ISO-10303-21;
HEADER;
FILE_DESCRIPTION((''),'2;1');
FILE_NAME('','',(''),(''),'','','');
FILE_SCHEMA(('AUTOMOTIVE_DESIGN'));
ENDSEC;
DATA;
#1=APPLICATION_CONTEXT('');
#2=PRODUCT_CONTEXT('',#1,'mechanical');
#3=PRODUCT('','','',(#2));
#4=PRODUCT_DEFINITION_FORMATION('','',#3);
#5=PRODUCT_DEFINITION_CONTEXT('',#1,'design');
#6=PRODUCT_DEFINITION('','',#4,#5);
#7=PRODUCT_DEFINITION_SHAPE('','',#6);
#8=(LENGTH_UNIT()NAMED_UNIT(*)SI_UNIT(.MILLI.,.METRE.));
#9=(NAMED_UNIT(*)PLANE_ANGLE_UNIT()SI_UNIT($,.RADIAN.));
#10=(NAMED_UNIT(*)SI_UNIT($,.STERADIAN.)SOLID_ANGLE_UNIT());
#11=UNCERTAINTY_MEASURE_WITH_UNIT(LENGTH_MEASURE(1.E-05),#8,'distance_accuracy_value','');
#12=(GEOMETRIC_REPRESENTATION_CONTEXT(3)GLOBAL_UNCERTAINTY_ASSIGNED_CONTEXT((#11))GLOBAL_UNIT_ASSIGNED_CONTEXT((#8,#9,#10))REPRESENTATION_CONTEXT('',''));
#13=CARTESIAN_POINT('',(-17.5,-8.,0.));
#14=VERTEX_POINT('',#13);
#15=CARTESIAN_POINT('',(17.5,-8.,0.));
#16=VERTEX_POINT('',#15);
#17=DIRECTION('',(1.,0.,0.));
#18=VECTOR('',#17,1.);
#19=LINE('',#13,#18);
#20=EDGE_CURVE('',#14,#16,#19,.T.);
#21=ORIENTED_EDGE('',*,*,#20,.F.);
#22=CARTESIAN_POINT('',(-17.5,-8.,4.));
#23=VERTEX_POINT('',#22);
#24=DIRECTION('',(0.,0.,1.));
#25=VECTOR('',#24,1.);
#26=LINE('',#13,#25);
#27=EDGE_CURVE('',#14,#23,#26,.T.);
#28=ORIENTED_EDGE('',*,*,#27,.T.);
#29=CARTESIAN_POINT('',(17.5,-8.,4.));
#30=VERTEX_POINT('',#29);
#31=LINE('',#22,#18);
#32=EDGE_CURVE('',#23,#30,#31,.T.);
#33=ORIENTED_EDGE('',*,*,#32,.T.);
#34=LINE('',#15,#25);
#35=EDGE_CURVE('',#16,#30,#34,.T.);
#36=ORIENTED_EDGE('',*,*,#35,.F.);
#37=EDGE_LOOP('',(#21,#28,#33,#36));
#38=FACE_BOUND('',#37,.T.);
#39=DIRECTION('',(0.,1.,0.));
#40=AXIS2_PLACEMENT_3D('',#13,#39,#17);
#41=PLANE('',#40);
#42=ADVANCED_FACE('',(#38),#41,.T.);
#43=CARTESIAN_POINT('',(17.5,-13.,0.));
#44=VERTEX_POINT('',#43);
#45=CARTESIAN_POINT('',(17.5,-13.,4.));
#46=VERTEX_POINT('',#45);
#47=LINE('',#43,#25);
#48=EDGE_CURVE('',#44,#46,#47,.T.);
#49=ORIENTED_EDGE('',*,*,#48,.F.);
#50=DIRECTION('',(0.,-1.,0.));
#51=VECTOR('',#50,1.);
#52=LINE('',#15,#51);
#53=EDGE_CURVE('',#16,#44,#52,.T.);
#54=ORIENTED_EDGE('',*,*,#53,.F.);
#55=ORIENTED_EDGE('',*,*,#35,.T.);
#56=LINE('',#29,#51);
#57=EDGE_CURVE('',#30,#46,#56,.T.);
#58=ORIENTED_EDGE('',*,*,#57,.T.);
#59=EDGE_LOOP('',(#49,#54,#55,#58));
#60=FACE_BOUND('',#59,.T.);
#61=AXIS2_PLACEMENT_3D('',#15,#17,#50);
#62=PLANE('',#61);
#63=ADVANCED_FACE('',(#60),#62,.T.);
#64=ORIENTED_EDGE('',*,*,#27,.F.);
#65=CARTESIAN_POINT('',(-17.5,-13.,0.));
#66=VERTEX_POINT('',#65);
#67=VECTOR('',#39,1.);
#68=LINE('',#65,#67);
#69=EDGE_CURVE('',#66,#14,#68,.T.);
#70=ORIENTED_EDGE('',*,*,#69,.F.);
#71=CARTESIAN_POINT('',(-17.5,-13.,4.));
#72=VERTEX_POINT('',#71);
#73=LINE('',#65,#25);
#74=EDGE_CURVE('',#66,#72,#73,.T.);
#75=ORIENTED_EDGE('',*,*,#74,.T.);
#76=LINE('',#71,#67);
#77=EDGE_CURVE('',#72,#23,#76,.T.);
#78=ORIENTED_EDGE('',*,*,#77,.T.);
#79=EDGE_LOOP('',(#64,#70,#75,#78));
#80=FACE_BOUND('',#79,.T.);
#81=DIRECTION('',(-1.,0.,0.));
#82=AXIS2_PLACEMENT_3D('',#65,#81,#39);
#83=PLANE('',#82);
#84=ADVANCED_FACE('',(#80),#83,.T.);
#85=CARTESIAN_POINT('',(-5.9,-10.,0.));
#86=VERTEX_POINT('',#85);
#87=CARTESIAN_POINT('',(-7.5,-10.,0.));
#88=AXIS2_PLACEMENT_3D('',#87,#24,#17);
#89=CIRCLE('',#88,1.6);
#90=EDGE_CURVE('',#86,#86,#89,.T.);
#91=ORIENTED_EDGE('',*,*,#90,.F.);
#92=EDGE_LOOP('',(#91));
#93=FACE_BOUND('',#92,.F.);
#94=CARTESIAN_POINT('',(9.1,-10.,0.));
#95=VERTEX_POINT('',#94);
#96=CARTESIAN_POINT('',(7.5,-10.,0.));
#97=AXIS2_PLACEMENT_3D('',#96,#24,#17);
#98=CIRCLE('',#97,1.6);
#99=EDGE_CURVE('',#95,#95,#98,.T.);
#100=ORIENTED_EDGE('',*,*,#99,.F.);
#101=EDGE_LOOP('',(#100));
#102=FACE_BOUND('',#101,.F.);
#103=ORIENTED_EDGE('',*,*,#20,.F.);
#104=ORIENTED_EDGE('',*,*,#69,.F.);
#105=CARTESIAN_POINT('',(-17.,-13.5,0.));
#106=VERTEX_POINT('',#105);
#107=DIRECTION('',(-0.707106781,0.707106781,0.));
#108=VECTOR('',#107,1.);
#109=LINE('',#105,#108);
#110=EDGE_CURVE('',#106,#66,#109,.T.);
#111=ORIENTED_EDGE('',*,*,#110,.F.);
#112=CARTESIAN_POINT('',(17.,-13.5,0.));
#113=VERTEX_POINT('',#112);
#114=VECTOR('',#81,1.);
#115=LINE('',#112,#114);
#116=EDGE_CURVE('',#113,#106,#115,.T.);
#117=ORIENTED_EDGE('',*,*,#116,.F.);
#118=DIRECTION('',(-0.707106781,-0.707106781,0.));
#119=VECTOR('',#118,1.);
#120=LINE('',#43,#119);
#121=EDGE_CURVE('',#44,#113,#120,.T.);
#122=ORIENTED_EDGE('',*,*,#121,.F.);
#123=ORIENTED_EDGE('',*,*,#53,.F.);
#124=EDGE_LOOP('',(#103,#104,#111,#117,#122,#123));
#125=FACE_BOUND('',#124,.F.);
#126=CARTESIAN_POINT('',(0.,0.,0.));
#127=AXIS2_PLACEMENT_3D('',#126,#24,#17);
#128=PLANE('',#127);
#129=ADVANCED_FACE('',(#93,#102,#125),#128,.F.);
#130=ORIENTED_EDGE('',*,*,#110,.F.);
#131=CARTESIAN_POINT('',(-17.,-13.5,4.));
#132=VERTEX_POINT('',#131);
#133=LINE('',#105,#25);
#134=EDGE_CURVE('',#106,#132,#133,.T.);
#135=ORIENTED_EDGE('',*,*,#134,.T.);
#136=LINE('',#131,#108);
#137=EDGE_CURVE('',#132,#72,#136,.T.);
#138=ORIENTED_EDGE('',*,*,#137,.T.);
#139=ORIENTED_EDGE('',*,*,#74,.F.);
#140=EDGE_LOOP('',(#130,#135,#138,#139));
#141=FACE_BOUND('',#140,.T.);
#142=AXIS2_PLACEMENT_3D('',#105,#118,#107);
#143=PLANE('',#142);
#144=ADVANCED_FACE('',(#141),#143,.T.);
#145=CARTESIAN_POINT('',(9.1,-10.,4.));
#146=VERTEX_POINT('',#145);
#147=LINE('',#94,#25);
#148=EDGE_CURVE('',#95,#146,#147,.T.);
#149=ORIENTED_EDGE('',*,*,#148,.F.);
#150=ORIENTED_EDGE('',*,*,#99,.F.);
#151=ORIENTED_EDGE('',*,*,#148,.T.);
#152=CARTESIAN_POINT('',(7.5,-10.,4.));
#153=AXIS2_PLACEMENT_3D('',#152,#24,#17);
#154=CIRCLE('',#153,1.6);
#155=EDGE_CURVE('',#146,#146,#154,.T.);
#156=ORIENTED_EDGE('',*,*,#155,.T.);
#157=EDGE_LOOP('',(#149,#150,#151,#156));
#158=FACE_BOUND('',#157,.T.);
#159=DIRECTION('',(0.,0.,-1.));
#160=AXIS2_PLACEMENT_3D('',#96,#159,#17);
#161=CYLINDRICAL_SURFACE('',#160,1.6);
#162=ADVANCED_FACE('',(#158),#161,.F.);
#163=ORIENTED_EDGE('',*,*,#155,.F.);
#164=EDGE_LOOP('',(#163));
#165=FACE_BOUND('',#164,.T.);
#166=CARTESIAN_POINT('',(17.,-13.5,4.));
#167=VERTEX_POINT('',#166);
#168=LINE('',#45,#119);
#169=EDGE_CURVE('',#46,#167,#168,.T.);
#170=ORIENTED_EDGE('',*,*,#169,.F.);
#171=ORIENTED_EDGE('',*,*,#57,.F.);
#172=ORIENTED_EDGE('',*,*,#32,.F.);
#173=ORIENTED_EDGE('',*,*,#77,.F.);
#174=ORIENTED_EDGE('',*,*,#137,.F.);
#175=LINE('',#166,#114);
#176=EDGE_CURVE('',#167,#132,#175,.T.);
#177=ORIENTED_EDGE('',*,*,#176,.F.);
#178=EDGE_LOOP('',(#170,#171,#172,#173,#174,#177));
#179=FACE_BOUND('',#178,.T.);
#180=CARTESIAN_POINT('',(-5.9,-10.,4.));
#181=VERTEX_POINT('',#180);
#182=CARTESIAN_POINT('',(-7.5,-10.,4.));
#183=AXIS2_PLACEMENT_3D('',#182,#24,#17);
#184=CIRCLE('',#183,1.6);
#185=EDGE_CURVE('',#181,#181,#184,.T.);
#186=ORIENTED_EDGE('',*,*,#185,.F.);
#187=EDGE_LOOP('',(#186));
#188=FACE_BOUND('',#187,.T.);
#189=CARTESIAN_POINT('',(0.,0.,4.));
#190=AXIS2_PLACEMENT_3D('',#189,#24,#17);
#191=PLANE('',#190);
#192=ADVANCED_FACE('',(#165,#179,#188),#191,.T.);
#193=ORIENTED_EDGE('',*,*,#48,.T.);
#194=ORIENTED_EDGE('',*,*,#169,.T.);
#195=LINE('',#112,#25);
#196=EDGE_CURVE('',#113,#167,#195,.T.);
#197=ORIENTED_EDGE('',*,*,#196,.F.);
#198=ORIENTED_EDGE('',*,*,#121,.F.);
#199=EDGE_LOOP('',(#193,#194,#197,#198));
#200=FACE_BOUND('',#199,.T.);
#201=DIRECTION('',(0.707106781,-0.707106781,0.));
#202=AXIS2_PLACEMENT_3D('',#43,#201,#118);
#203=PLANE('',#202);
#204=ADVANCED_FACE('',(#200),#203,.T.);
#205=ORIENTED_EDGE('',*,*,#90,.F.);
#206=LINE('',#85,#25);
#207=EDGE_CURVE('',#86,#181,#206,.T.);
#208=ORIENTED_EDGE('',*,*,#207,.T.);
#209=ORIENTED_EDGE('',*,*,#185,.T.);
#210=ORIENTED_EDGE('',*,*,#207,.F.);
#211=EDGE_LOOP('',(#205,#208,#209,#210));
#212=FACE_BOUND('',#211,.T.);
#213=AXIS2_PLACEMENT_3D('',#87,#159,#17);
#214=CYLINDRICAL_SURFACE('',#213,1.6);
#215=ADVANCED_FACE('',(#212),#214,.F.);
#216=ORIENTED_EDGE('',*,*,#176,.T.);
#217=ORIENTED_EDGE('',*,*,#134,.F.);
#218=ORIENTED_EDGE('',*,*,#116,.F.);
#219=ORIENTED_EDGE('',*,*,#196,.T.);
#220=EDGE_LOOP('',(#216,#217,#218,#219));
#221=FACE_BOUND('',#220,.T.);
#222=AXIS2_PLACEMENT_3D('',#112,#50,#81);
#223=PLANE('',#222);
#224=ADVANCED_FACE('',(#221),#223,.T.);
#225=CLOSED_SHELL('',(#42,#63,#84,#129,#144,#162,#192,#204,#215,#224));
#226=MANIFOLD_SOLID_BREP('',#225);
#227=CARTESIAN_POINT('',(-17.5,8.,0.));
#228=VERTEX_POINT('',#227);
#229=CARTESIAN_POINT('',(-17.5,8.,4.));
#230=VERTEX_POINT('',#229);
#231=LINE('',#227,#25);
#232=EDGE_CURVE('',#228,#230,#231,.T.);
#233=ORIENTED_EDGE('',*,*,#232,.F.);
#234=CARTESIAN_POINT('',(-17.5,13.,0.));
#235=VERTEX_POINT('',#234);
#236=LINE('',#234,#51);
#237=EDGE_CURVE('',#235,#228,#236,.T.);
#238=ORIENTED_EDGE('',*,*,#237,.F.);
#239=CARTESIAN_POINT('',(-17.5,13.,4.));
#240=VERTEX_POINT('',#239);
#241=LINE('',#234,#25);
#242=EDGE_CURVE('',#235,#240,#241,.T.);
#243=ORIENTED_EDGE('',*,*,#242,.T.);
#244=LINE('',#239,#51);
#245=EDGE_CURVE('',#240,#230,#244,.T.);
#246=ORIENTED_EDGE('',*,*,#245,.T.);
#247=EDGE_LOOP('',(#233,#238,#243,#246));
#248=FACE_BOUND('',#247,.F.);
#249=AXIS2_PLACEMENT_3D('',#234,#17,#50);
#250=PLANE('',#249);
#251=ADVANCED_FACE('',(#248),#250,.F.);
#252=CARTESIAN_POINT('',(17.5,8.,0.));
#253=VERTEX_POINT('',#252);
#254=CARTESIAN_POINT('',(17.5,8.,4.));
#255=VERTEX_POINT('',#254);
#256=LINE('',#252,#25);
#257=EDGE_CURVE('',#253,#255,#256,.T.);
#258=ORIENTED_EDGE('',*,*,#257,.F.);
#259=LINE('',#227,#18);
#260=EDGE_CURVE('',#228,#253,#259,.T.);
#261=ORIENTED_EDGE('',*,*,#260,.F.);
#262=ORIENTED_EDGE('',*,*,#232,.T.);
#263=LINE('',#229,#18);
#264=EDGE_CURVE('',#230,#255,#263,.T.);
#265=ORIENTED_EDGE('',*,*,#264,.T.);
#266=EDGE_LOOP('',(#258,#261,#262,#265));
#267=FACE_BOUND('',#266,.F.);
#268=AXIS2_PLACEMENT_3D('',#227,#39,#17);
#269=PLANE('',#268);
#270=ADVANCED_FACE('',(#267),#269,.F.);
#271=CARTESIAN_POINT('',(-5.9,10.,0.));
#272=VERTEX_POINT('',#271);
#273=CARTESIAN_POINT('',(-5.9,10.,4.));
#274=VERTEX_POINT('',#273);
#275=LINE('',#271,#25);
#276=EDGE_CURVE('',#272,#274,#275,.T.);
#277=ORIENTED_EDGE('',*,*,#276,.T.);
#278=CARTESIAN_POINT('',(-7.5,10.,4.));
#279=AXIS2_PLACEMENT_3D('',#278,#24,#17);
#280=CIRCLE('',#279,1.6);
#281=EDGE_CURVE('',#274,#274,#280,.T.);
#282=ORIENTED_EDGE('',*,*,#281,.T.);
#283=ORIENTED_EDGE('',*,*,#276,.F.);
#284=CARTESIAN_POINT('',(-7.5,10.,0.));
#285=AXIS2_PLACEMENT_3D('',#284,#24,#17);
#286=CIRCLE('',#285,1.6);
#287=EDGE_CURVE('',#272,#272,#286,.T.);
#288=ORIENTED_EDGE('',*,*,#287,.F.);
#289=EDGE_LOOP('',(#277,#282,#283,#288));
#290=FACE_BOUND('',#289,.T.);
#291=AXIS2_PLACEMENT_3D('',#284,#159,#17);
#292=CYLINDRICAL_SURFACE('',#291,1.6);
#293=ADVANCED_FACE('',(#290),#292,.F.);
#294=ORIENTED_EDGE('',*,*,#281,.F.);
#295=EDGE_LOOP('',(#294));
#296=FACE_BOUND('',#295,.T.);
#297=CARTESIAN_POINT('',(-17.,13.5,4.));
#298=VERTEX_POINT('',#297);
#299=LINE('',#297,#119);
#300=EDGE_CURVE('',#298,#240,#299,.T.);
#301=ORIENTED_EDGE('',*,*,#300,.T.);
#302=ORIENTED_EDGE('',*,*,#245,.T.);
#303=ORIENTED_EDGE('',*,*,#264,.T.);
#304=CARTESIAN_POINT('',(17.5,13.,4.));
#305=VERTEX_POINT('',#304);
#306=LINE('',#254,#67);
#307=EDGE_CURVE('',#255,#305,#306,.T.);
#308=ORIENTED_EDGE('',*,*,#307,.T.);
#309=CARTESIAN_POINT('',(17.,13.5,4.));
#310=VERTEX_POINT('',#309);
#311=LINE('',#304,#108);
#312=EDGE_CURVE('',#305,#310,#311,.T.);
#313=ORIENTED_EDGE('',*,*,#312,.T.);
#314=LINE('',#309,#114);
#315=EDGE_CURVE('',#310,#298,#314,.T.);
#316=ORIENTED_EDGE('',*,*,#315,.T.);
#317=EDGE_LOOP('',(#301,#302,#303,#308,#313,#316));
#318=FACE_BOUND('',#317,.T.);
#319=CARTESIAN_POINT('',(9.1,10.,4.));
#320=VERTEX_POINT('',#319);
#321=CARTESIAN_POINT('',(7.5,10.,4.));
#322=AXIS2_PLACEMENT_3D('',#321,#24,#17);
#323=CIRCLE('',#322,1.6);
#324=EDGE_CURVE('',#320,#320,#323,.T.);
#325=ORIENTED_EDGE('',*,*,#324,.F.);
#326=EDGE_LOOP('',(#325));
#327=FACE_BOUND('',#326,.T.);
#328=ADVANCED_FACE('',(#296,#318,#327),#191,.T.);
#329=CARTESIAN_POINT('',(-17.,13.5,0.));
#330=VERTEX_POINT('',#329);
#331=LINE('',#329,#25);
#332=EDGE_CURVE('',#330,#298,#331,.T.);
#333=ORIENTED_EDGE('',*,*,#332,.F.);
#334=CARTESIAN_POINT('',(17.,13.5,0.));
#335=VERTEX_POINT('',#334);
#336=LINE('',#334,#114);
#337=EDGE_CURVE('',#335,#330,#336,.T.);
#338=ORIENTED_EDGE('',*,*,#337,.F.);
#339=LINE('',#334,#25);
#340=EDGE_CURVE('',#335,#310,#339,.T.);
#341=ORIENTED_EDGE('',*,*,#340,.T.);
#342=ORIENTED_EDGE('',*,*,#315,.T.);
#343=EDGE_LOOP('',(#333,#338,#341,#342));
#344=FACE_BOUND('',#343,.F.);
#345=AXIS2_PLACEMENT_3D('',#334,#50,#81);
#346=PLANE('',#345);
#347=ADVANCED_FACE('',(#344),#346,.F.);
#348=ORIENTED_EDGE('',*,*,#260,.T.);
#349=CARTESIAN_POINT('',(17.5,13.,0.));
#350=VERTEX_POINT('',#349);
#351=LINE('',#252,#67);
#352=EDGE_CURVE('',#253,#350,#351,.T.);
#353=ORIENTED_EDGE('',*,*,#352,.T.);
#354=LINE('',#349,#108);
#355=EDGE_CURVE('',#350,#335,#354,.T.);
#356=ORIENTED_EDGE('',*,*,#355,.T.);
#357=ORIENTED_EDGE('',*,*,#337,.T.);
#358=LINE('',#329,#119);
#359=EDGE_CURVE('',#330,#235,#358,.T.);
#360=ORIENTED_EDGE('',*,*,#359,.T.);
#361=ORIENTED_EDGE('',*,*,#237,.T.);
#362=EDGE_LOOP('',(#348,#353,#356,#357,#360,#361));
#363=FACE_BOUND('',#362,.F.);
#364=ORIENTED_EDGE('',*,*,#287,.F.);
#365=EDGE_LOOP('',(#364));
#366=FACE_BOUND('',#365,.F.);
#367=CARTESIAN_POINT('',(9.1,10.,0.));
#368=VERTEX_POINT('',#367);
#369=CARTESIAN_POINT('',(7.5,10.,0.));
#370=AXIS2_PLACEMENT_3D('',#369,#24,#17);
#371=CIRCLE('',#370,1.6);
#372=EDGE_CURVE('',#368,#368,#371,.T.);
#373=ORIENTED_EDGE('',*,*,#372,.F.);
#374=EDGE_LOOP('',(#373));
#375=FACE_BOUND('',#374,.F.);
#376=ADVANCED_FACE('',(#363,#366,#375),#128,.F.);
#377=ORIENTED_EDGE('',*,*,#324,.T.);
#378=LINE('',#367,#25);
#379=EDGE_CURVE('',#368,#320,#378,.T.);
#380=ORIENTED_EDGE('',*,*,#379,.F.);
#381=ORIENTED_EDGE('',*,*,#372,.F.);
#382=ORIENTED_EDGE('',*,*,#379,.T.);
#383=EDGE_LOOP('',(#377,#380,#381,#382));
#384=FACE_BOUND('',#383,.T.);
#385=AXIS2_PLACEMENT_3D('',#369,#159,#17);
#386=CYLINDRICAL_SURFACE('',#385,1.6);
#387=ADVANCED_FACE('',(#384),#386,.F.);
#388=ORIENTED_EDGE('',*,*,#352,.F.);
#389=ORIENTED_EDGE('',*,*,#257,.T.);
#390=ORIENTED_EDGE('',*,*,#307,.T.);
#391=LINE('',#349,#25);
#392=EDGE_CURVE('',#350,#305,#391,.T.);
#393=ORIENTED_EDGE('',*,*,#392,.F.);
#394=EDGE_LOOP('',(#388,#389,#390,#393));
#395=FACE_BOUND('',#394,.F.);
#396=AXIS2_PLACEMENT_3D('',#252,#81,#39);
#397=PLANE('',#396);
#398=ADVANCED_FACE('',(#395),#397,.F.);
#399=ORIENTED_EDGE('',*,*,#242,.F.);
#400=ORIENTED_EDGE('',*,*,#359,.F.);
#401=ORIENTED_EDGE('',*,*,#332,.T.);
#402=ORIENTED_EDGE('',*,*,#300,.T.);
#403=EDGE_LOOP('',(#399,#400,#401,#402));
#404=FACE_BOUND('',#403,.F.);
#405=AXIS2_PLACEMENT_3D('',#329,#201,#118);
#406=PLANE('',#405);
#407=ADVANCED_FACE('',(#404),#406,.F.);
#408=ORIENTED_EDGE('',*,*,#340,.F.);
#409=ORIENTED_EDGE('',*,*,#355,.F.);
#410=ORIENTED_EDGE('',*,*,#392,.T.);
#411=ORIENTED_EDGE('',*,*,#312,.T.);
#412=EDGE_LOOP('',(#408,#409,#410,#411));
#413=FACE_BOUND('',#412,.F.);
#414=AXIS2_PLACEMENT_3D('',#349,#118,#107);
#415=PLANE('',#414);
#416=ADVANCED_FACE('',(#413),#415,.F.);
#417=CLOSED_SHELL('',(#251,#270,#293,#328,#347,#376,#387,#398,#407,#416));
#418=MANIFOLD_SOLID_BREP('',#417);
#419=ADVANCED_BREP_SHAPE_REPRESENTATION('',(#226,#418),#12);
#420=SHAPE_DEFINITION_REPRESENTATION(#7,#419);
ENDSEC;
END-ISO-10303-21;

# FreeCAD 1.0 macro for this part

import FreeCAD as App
import Part
import Sketcher

V = App.Vector


def add_polygon(sketch, points):
    """Adds a closed chain of lines whose ends are joined by coincident constraints."""
    first, n = sketch.GeometryCount, len(points)
    for a, b in zip(points, points[1:] + points[:1]):
        sketch.addGeometry(Part.LineSegment(App.Vector(*a, 0), App.Vector(*b, 0)), False)
    for i in range(n):
        sketch.addConstraint(Sketcher.Constraint("Coincident", first + i, 2, first + (i + 1) % n, 1))

doc = App.newDocument("Part")
body = doc.addObject("PartDesign::Body", "Body")
body.AllowCompound = True

sketch1 = body.newObject("Sketcher::SketchObject", "Sketch")
sketch1.AttachmentSupport = (doc.getObject("XY_Plane"), [""])
sketch1.MapMode = "FlatFace"
add_polygon(sketch1, [(-17.5, 13), (-17.5, 8), (17.5, 8), (17.5, 13), (17, 13.5), (-17, 13.5)])
sketch1.addGeometry(Part.Circle(V(-7.5, 10, 0), V(0, 0, 1), 1.6), False)
sketch1.addGeometry(Part.Circle(V(7.5, 10, 0), V(0, 0, 1), 1.6), False)
add_polygon(sketch1, [(17.5, -8), (-17.5, -8), (-17.5, -13), (-17, -13.5), (17, -13.5), (17.5, -13)])
sketch1.addGeometry(Part.Circle(V(-7.5, -10, 0), V(0, 0, 1), 1.6), False)
sketch1.addGeometry(Part.Circle(V(7.5, -10, 0), V(0, 0, 1), 1.6), False)
sketch1.addConstraint(Sketcher.Constraint("Vertical", 0))
sketch1.addConstraint(Sketcher.Constraint("Horizontal", 1))
sketch1.addConstraint(Sketcher.Constraint("Vertical", 2))
sketch1.addConstraint(Sketcher.Constraint("Horizontal", 4))
sketch1.addConstraint(Sketcher.Constraint("Horizontal", 8))
sketch1.addConstraint(Sketcher.Constraint("Vertical", 9))
sketch1.addConstraint(Sketcher.Constraint("Horizontal", 11))
sketch1.addConstraint(Sketcher.Constraint("Vertical", 13))
sketch1.addConstraint(Sketcher.Constraint("Equal", 6, 7))
sketch1.addConstraint(Sketcher.Constraint("Equal", 7, 14))
sketch1.addConstraint(Sketcher.Constraint("Equal", 14, 15))
sketch1.addConstraint(Sketcher.Constraint("Symmetric", 7, 3, 14, 3, -1, 1))
sketch1.addConstraint(Sketcher.Constraint("Symmetric", 6, 3, 15, 3, -1, 1))
sketch1.addConstraint(Sketcher.Constraint("Symmetric", 1, 2, 8, 2, -1, 1))
sketch1.addConstraint(Sketcher.Constraint("Symmetric", 3, 2, 10, 2, -1, 1))
sketch1.addConstraint(Sketcher.Constraint("Symmetric", 5, 2, 12, 2, -1, 1))
sketch1.addConstraint(Sketcher.Constraint("Symmetric", 6, 3, 7, 3, -2))
sketch1.addConstraint(Sketcher.Constraint("Symmetric", 2, 2, 5, 2, -2))
sketch1.addConstraint(Sketcher.Constraint("Perpendicular", 3, 5))
sketch1.addConstraint(Sketcher.Constraint("Perpendicular", 5, 10))
sketch1.addConstraint(Sketcher.Constraint("Perpendicular", 10, 12))
sketch1.addConstraint(Sketcher.Constraint("Vertical", 4, 2, 10, 2))
sketch1.addConstraint(Sketcher.Constraint("Diameter", 6, 3.2))
sketch1.addConstraint(Sketcher.Constraint("DistanceY", 0, 2, 0, 1, 5.0))
sketch1.addConstraint(Sketcher.Constraint("DistanceY", -1, 1, 6, 3, 10.0))
sketch1.addConstraint(Sketcher.Constraint("DistanceX", 6, 3, 7, 3, 15.0))
sketch1.addConstraint(Sketcher.Constraint("DistanceX", 0, 2, 6, 3, 10.0))
sketch1.addConstraint(Sketcher.Constraint("DistanceY", 0, 2, 6, 3, 2.0))
sketch1.addConstraint(Sketcher.Constraint("DistanceY", 7, 3, 3, 2, 3.5))
pad1 = body.newObject("PartDesign::Pad", "Pad")
pad1.Profile = sketch1
pad1.Length = 4

doc.recompute()
